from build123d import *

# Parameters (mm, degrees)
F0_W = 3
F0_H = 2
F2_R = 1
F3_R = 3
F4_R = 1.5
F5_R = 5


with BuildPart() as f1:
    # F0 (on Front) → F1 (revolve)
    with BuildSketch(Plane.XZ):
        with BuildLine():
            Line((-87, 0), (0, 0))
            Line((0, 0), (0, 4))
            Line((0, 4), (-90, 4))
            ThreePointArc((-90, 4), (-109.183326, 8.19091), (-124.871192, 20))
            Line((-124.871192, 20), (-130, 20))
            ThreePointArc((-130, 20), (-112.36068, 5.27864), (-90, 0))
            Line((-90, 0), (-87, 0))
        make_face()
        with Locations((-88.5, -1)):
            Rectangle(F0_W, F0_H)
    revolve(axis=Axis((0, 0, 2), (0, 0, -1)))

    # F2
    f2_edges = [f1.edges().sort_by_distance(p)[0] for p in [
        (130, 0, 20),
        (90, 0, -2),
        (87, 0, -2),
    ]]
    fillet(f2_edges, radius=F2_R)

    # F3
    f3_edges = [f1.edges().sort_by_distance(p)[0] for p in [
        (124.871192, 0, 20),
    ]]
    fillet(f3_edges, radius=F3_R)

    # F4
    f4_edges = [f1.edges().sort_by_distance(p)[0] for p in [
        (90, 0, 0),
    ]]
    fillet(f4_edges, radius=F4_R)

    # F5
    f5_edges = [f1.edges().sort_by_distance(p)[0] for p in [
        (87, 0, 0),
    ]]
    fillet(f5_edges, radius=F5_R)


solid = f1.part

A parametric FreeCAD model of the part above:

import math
import FreeCAD as App
import Part
import Sketcher
Q = App.Units.Quantity


def edges_at(feature, points):
    """Names of the edges that pass closest to the given points."""
    edges = feature.Shape.Edges
    near = lambda p: min(range(len(edges)), key=lambda i: edges[i].distToShape(Part.Vertex(*p))[0])
    return sorted({f"Edge{near(p) + 1}" for p in points})

doc = App.newDocument("Part")
params = doc.addObject("Spreadsheet::Sheet", "Params")
for row, (alias, value) in enumerate([
    ("sketch1_radius", "46.000002 mm"),
    ("sketch1_width", "90 mm"),
    ("sketch1_width2", "3 mm"),
    ("sketch1_height", "4 mm"),
    ("sketch1_height2", "2 mm"),
    ("revolution_angle", "360 deg"),
    ("fillet_radius", "1 mm"),
    ("fillet2_radius", "3 mm"),
    ("fillet3_radius", "1.5 mm"),
    ("fillet4_radius", "5 mm"),
], start=1):
    params.set(f"A{row}", alias)
    params.set(f"B{row}", "=" + value)
    params.setAlias(f"B{row}", alias)

body = doc.addObject("PartDesign::Body", "Body")

# Sketch on XZ plane
sketch1 = body.newObject("Sketcher::SketchObject", "Sketch")
sketch1.AttachmentSupport = (doc.getObject("XZ_Plane"), [""])
sketch1.MapMode = "FlatFace"
sketch1.addGeometry([
    Part.LineSegment(App.Vector(0, 0, 0), App.Vector(0, 4, 0)),  # 0
    Part.LineSegment(App.Vector(0, 4, 0), App.Vector(-90, 4, 0)),  # 1
    Part.ArcOfCircle(Part.Circle(App.Vector(-90, 50, 0), App.Vector(0, 0, 1), 46), math.radians(-139), math.radians(-90)),  # 2
    Part.LineSegment(App.Vector(-124.9, 20, 0), App.Vector(-130, 20, 0)),  # 3
    Part.ArcOfCircle(Part.Circle(App.Vector(-90, 50, 0), App.Vector(0, 0, 1), 50), math.radians(-143), math.radians(-90)),  # 4
    Part.LineSegment(App.Vector(-90, 0, 0), App.Vector(-90, -2, 0)),  # 5
    Part.LineSegment(App.Vector(-90, -2, 0), App.Vector(-87, -2, 0)),  # 6
    Part.LineSegment(App.Vector(-87, -2, 0), App.Vector(-87, 0, 0)),  # 7
    Part.LineSegment(App.Vector(-87, 0, 0), App.Vector(0, 0, 0)),  # 8
], False)
sketch1.addConstraint([
    Sketcher.Constraint("Coincident", 0, 2, 1, 1),
    Sketcher.Constraint("Tangent", 1, 2, 2, 2),
    Sketcher.Constraint("Coincident", 2, 1, 3, 1),
    Sketcher.Constraint("Coincident", 3, 2, 4, 1),
    Sketcher.Constraint("Coincident", 4, 2, 5, 1),
    Sketcher.Constraint("Coincident", 5, 2, 6, 1),
    Sketcher.Constraint("Coincident", 6, 2, 7, 1),
    Sketcher.Constraint("Coincident", 7, 2, 8, 1),
    Sketcher.Constraint("Coincident", 8, 2, 0, 1),
    Sketcher.Constraint("Vertical", 0),
    Sketcher.Constraint("Horizontal", 1),
    Sketcher.Constraint("Horizontal", 3),
    Sketcher.Constraint("Vertical", 5),
    Sketcher.Constraint("Horizontal", 6),
    Sketcher.Constraint("Vertical", 7),
    Sketcher.Constraint("Horizontal", 8),
    Sketcher.Constraint("Coincident", 8, 2, -1, 1),
    Sketcher.Constraint("Coincident", 4, 3, 2, 3),
    Sketcher.Constraint("PointOnObject", 4, 2, -1),
    Sketcher.Constraint("Vertical", 1, 2, 4, 2),
    Sketcher.Constraint("Radius", 2, Q("46.000002 mm")),
    Sketcher.Constraint("DistanceX", 1, 2, 1, 1, Q("90 mm")),
    Sketcher.Constraint("DistanceX", 6, 1, 6, 2, Q("3 mm")),
    Sketcher.Constraint("DistanceY", 0, 1, 0, 2, Q("4 mm")),
    Sketcher.Constraint("DistanceY", 5, 2, 5, 1, Q("2 mm")),
    Sketcher.Constraint("DistanceY", -1, 1, 2, 1, Q("20 mm")),
])
sketch1.setExpression("Constraints[20]", "Params.sketch1_radius")
sketch1.setExpression("Constraints[21]", "Params.sketch1_width")
sketch1.setExpression("Constraints[22]", "Params.sketch1_width2")
sketch1.setExpression("Constraints[23]", "Params.sketch1_height")
sketch1.setExpression("Constraints[24]", "Params.sketch1_height2")
revolution = body.newObject("PartDesign::Revolution", "Revolution")
revolution.Profile = sketch1
revolution.ReferenceAxis = (sketch1, ["V_Axis"])
revolution.setExpression("Angle", "Params.revolution_angle")
doc.recompute()

fillet = body.newObject("PartDesign::Fillet", "Fillet")
fillet.Base = (revolution, edges_at(revolution, [(130, 0, 20), (90, 0, -2), (87, 0, -2)]))
fillet.setExpression("Radius", "Params.fillet_radius")
doc.recompute()

fillet2 = body.newObject("PartDesign::Fillet", "Fillet001")
fillet2.Base = (fillet, edges_at(fillet, [(124.871, 0, 20)]))
fillet2.setExpression("Radius", "Params.fillet2_radius")
doc.recompute()

fillet3 = body.newObject("PartDesign::Fillet", "Fillet002")
fillet3.Base = (fillet2, edges_at(fillet2, [(90, 0, 0)]))
fillet3.setExpression("Radius", "Params.fillet3_radius")
doc.recompute()

fillet4 = body.newObject("PartDesign::Fillet", "Fillet003")
fillet4.Base = (fillet3, edges_at(fillet3, [(87, 0, 0)]))
fillet4.setExpression("Radius", "Params.fillet4_radius")

doc.recompute()
